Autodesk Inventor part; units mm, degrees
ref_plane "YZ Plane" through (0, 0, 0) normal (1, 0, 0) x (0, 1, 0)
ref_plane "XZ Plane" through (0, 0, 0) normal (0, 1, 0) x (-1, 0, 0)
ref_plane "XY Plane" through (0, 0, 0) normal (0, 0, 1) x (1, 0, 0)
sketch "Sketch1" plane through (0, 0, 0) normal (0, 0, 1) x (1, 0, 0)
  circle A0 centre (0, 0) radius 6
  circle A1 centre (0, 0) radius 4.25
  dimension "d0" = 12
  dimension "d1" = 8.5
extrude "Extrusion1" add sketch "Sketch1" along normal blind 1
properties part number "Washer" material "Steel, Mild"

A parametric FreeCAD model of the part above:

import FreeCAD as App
import Part
import Sketcher

V = App.Vector

doc = App.newDocument("Part")
params = doc.addObject("Spreadsheet::Sheet", "Params")
for row, (alias, value) in enumerate([
    ("sketch1_diameter", "12 mm"),
    ("sketch1_diameter2", "8.5 mm"),
    ("pad1_length", "1 mm"),
], start=1):
    params.set(f"A{row}", alias)
    params.set(f"B{row}", "=" + value)
    params.setAlias(f"B{row}", alias)

body = doc.addObject("PartDesign::Body", "Body")

# Sketch on XY plane
sketch1 = body.newObject("Sketcher::SketchObject", "Sketch")
sketch1.AttachmentSupport = (doc.getObject("XY_Plane"), [""])
sketch1.MapMode = "FlatFace"
sketch1.addGeometry(Part.Circle(V(0, 0, 0), V(0, 0, 1), 6), False)
sketch1.addGeometry(Part.Circle(V(0, 0, 0), V(0, 0, 1), 4.2), False)
sketch1.addConstraint(Sketcher.Constraint("Coincident", 0, 3, -1, 1))
sketch1.addConstraint(Sketcher.Constraint("Coincident", 1, 3, -1, 1))
sketch1.addConstraint(Sketcher.Constraint("Diameter", 0, 12.0))
sketch1.addConstraint(Sketcher.Constraint("Diameter", 1, 8.5))
sketch1.setExpression("Constraints[2]", "Params.sketch1_diameter")
sketch1.setExpression("Constraints[3]", "Params.sketch1_diameter2")
pad1 = body.newObject("PartDesign::Pad", "Pad")
pad1.Profile = sketch1
pad1.setExpression("Length", "Params.pad1_length")

doc.recompute()
